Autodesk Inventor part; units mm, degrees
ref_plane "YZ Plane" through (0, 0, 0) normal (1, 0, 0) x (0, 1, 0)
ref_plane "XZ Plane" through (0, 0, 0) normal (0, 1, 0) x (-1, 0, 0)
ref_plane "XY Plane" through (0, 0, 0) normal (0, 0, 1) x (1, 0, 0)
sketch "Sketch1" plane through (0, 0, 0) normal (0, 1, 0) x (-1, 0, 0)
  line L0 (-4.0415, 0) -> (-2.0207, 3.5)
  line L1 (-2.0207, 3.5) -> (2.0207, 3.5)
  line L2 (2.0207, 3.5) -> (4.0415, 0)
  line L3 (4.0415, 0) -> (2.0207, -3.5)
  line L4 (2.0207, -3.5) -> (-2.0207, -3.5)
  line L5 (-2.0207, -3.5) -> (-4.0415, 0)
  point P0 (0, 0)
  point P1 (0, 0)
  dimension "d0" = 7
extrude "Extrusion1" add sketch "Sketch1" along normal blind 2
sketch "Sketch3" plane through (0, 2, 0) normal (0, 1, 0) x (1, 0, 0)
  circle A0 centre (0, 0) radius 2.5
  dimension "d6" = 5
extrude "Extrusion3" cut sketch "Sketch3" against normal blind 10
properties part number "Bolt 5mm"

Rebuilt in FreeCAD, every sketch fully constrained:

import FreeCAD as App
import Part
import Sketcher
Q = App.Units.Quantity


def add_polygon(sketch, points):
    """Adds a closed chain of lines whose ends are joined by coincident constraints."""
    first, n = sketch.GeometryCount, len(points)
    for a, b in zip(points, points[1:] + points[:1]):
        sketch.addGeometry(Part.LineSegment(App.Vector(*a, 0), App.Vector(*b, 0)), False)
    for i in range(n):
        sketch.addConstraint(Sketcher.Constraint("Coincident", first + i, 2, first + (i + 1) % n, 1))

doc = App.newDocument("Part")
body = doc.addObject("PartDesign::Body", "Body")

# Sketch on XZ plane
sketch1 = doc.addObject("Sketcher::SketchObject", "Sketch")
body.addObject(sketch1)
sketch1.AttachmentSupport = (doc.XZ_Plane, [""])
sketch1.MapMode = "FlatFace"
add_polygon(sketch1, [(2, 3.5), (4, 0), (2, -3.5), (-2, -3.5), (-4, 0), (-2, 3.5)])  # lines 0-5
sketch1.addConstraint([
    Sketcher.Constraint("Horizontal", 2),
    Sketcher.Constraint("Horizontal", 5),
    Sketcher.Constraint("Symmetric", 0, 2, 3, 2, -1, 1),
    Sketcher.Constraint("Symmetric", 1, 2, 4, 2, -1, 1),
    Sketcher.Constraint("PointOnObject", 0, 2, -1),
    Sketcher.Constraint("Parallel", 0, 3),
    Sketcher.Constraint("Vertical", 2, 2, 4, 2),
    Sketcher.Constraint("DistanceY", 2, 2, 4, 2, 7.0),
    Sketcher.Constraint("Angle", 0, Q("-59.999 deg")),
    Sketcher.Constraint("DistanceX", 2, 2, 2, 1, 4.0414),
])
pad1 = doc.addObject("PartDesign::Pad", "Pad")
body.addObject(pad1)
pad1.Profile = sketch1
pad1.Length = 2
pad1.Reversed = True

# Sketch on XZ plane
sketch2 = doc.addObject("Sketcher::SketchObject", "Sketch001")
body.addObject(sketch2)
sketch2.AttachmentSupport = (doc.XZ_Plane, [""])
sketch2.MapMode = "FlatFace"
sketch2.AttachmentOffset = App.Placement(App.Vector(0, 0, -2), App.Rotation())
sketch2.addGeometry(Part.Circle(App.Vector(0, 0, 0), App.Vector(0, 0, 1), 2.5), False)
sketch2.addConstraint([
    Sketcher.Constraint("Coincident", 0, 3, -1, 1),
    Sketcher.Constraint("Diameter", 0, 5.0),
])
pocket1 = doc.addObject("PartDesign::Pocket", "Pocket")
body.addObject(pocket1)
pocket1.Profile = sketch2
pocket1.Length = 10
pocket1.Reversed = True

doc.recompute()
